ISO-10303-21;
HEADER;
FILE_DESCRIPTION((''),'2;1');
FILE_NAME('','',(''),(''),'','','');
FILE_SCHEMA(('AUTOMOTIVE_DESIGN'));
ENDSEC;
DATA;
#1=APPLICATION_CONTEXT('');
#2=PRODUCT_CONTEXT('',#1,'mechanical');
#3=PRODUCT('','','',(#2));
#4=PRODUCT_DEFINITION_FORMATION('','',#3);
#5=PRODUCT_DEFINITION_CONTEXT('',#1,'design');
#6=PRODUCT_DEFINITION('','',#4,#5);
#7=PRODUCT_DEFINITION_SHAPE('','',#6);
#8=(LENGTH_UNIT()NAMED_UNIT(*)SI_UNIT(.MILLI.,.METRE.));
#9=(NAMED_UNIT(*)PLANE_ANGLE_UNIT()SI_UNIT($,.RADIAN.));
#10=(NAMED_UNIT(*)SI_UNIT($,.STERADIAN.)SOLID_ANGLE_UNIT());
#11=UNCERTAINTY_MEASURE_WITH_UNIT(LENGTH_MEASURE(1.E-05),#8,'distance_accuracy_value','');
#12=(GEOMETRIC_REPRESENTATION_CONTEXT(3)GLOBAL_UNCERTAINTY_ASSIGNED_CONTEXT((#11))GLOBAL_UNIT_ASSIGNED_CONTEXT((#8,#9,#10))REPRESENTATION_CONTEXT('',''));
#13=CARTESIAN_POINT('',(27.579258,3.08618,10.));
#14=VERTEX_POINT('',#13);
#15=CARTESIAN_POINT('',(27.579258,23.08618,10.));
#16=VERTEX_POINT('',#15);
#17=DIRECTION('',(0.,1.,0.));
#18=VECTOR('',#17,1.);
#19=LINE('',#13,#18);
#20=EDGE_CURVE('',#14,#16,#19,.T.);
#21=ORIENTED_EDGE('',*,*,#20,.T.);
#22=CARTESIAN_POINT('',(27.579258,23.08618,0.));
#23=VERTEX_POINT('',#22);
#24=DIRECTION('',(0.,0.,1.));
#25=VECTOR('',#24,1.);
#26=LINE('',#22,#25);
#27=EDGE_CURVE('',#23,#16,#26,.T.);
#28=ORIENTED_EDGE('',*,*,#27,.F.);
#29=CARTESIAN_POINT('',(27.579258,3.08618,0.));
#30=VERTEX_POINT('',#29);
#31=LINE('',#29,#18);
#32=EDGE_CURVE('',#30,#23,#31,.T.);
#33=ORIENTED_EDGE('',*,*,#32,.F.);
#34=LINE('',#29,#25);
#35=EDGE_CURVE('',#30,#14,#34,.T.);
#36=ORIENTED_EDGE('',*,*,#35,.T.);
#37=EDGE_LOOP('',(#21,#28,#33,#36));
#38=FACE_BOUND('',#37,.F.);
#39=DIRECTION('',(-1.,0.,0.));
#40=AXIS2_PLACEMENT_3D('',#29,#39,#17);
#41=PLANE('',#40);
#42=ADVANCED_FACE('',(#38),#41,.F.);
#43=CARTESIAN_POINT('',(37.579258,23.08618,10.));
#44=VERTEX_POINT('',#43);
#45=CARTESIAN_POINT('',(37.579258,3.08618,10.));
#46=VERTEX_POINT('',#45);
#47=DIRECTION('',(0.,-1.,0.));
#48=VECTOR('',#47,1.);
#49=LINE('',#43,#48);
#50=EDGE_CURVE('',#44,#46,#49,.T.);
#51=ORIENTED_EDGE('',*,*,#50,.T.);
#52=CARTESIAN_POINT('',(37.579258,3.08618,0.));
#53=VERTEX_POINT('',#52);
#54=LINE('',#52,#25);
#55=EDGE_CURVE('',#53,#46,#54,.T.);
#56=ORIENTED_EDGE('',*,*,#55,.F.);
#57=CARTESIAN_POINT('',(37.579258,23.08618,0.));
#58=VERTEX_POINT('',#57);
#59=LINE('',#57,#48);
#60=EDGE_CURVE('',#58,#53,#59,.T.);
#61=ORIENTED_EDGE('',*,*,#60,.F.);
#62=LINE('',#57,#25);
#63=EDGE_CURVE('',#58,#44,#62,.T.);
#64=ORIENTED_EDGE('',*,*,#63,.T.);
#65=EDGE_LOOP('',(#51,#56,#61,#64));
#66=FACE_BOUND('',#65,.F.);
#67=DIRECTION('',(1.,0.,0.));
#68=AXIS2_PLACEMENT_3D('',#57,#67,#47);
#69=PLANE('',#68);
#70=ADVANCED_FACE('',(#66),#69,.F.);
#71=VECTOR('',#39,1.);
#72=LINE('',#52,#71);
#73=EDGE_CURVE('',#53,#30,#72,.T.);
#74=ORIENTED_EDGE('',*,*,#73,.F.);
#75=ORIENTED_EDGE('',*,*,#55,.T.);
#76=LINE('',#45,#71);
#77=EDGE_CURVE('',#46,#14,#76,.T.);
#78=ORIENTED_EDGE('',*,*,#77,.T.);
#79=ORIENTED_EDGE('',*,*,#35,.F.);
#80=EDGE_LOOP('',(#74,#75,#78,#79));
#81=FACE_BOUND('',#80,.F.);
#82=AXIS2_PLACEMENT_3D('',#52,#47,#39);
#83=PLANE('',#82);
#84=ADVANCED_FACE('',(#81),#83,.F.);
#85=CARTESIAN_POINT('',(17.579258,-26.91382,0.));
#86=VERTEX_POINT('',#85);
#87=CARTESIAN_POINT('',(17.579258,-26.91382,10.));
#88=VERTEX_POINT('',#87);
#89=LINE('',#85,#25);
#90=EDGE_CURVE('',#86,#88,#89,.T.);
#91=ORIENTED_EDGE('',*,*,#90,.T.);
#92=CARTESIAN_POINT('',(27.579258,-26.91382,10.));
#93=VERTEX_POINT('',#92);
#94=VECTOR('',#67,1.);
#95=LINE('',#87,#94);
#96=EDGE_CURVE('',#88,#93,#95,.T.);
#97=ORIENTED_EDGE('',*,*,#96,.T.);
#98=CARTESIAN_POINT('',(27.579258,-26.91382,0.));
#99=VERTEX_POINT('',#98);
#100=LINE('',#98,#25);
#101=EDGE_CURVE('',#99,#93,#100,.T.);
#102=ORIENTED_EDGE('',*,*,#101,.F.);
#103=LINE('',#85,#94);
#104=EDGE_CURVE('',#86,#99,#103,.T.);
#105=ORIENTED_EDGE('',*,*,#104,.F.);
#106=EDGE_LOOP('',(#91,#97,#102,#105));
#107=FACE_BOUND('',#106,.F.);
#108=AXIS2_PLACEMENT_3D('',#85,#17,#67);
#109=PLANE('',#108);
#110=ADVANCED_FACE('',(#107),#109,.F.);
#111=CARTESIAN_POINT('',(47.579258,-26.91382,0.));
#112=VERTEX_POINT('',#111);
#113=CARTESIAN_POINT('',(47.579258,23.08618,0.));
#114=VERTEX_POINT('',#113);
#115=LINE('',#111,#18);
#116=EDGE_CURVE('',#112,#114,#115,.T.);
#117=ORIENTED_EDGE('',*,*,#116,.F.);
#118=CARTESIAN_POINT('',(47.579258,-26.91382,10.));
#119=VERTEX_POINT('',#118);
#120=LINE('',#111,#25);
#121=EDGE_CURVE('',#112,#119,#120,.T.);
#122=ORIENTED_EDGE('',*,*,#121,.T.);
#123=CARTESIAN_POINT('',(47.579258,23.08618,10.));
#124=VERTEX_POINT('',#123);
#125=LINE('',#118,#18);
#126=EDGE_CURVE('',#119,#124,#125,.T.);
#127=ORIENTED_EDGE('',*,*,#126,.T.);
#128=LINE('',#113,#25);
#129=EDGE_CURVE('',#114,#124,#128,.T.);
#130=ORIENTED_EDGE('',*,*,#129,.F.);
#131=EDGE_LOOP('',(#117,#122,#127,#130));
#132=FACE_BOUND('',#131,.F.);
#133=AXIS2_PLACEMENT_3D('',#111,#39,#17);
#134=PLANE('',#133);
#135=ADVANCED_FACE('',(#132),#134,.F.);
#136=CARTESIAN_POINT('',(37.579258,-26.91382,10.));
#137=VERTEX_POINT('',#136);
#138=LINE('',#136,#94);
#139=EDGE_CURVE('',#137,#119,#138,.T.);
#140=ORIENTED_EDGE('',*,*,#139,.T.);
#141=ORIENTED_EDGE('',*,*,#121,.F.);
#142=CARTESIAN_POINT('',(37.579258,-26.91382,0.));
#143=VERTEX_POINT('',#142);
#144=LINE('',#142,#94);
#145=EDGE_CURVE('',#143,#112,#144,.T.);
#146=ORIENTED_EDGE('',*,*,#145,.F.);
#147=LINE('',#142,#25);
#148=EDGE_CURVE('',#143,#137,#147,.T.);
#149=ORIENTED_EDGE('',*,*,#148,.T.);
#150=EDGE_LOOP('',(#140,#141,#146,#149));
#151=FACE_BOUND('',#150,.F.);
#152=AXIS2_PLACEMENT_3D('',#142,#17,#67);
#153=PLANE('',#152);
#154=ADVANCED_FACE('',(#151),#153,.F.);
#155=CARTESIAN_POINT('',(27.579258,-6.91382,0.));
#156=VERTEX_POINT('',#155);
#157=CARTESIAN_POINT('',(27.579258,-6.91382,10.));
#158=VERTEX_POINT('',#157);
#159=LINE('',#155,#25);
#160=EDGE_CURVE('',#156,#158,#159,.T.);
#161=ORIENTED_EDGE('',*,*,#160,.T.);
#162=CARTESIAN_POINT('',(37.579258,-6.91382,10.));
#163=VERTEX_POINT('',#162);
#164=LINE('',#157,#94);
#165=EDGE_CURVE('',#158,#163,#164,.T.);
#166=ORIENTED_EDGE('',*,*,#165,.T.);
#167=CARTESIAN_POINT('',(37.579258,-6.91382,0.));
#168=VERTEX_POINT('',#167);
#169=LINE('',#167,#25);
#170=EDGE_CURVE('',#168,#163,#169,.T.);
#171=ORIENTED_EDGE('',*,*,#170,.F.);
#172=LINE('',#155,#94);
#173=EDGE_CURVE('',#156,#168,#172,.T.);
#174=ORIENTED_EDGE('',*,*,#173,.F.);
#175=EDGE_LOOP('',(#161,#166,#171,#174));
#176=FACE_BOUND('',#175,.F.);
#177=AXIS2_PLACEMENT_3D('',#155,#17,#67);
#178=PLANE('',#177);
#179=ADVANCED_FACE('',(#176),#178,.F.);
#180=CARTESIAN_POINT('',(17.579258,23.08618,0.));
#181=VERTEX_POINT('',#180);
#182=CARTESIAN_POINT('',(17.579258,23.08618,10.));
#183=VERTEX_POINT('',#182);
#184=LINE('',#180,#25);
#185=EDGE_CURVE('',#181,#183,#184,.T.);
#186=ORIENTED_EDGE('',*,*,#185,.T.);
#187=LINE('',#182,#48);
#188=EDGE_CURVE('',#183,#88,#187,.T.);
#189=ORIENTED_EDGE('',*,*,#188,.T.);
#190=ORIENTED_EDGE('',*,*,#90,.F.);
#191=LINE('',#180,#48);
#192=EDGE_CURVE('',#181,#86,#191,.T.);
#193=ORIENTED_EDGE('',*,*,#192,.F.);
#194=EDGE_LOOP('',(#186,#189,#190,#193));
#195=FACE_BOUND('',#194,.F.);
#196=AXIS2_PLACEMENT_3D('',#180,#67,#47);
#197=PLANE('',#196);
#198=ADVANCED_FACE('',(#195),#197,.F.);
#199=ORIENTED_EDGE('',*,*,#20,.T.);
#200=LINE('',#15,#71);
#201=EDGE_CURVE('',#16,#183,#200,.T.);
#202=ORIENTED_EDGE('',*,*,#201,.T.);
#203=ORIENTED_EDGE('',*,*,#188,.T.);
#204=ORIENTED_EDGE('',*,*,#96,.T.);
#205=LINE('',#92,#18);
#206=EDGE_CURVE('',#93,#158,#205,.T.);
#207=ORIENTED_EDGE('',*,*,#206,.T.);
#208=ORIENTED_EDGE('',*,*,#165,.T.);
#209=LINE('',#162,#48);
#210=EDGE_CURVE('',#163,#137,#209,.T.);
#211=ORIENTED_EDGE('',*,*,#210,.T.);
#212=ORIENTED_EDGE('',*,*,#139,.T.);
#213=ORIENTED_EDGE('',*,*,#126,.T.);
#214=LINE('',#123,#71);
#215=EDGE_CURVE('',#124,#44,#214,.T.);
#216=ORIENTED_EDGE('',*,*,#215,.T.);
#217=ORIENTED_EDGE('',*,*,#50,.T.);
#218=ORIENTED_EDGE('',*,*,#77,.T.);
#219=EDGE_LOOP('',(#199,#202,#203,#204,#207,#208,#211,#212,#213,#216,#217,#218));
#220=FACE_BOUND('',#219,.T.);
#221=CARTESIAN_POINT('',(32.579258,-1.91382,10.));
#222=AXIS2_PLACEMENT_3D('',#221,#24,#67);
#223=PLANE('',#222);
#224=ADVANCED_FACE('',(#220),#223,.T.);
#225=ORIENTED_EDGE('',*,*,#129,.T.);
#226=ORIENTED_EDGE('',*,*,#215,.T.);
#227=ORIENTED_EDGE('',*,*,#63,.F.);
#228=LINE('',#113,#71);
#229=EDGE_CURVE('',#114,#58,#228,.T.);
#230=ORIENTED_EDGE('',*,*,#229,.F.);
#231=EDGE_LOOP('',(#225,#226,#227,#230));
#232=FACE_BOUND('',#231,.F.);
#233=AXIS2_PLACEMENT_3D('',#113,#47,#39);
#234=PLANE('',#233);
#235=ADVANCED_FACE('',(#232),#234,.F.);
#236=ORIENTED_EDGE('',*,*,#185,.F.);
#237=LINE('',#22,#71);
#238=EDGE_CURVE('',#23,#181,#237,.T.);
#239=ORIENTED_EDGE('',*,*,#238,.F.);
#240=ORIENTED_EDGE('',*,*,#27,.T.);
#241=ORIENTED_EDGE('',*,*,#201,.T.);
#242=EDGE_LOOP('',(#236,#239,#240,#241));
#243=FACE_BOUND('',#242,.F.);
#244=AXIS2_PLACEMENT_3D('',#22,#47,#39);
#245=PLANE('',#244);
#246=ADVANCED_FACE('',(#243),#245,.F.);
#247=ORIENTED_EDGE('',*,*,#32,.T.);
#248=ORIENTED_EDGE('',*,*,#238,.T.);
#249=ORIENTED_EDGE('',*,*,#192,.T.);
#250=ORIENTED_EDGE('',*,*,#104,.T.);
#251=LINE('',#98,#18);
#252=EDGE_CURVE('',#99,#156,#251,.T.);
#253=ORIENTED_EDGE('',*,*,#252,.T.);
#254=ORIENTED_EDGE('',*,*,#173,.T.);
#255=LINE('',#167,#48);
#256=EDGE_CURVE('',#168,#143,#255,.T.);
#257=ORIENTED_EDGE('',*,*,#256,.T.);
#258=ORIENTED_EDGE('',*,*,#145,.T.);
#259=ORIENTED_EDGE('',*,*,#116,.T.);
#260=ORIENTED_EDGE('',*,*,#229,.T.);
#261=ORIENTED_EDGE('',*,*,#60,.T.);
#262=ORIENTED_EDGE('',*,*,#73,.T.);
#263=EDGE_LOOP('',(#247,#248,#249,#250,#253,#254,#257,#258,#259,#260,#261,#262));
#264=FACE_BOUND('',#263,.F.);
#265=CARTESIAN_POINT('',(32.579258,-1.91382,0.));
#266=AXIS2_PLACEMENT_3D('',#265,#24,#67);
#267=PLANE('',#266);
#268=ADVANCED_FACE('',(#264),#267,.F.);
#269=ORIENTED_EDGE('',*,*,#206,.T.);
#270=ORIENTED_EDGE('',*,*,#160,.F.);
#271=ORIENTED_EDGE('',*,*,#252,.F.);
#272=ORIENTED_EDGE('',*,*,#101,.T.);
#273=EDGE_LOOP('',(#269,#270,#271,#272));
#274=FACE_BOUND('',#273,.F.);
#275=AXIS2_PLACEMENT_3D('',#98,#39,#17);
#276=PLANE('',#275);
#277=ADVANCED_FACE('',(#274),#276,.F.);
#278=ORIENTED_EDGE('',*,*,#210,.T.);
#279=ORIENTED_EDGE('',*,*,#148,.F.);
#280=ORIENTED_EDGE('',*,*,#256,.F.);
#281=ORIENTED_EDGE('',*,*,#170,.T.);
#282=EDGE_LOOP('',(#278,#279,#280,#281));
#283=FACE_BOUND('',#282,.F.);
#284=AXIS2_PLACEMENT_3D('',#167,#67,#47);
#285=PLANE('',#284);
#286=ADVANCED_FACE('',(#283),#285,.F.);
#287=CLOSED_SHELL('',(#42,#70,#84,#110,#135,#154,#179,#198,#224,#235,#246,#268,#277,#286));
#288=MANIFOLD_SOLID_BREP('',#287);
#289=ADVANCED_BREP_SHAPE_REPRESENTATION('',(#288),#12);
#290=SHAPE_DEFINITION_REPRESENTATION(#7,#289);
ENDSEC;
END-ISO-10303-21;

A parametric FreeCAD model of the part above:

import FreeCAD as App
import Part
import Sketcher
Q = App.Units.Quantity

doc = App.newDocument("Part")
params = doc.addObject("Spreadsheet::Sheet", "Params")
for row, (alias, value) in enumerate([
    ("sketch1_width", "10 mm"),
    ("sketch1_height", "50 mm"),
    ("sketch1_height2", "20 mm"),
    ("pad1_length", "10 mm"),
], start=1):
    params.set(f"A{row}", alias)
    params.set(f"B{row}", "=" + value)
    params.setAlias(f"B{row}", alias)

body = doc.addObject("PartDesign::Body", "Body")

# Sketch on XY plane
sketch1 = body.newObject("Sketcher::SketchObject", "Sketch")
sketch1.AttachmentSupport = (doc.getObject("XY_Plane"), [""])
sketch1.MapMode = "FlatFace"
sketch1.addGeometry(Part.LineSegment(App.Vector(18, 23, 0), App.Vector(18, -27, 0)), False)
sketch1.addGeometry(Part.LineSegment(App.Vector(18, -27, 0), App.Vector(28, -27, 0)), False)
sketch1.addGeometry(Part.LineSegment(App.Vector(28, -27, 0), App.Vector(28, -7, 0)), False)
sketch1.addGeometry(Part.LineSegment(App.Vector(28, -7, 0), App.Vector(38, -7, 0)), False)
sketch1.addGeometry(Part.LineSegment(App.Vector(38, -7, 0), App.Vector(38, -27, 0)), False)
sketch1.addGeometry(Part.LineSegment(App.Vector(38, -27, 0), App.Vector(48, -27, 0)), False)
sketch1.addGeometry(Part.LineSegment(App.Vector(48, -27, 0), App.Vector(48, 23, 0)), False)
sketch1.addGeometry(Part.LineSegment(App.Vector(48, 23, 0), App.Vector(38, 23, 0)), False)
sketch1.addGeometry(Part.LineSegment(App.Vector(38, 23, 0), App.Vector(38, 3, 0)), False)
sketch1.addGeometry(Part.LineSegment(App.Vector(38, 3, 0), App.Vector(28, 3, 0)), False)
sketch1.addGeometry(Part.LineSegment(App.Vector(28, 3, 0), App.Vector(28, 23, 0)), False)
sketch1.addGeometry(Part.LineSegment(App.Vector(28, 23, 0), App.Vector(18, 23, 0)), False)
sketch1.addConstraint(Sketcher.Constraint("Coincident", 0, 2, 1, 1))
sketch1.addConstraint(Sketcher.Constraint("Coincident", 1, 2, 2, 1))
sketch1.addConstraint(Sketcher.Constraint("Coincident", 2, 2, 3, 1))
sketch1.addConstraint(Sketcher.Constraint("Coincident", 3, 2, 4, 1))
sketch1.addConstraint(Sketcher.Constraint("Coincident", 4, 2, 5, 1))
sketch1.addConstraint(Sketcher.Constraint("Coincident", 5, 2, 6, 1))
sketch1.addConstraint(Sketcher.Constraint("Coincident", 6, 2, 7, 1))
sketch1.addConstraint(Sketcher.Constraint("Coincident", 7, 2, 8, 1))
sketch1.addConstraint(Sketcher.Constraint("Coincident", 8, 2, 9, 1))
sketch1.addConstraint(Sketcher.Constraint("Coincident", 9, 2, 10, 1))
sketch1.addConstraint(Sketcher.Constraint("Coincident", 10, 2, 11, 1))
sketch1.addConstraint(Sketcher.Constraint("Coincident", 11, 2, 0, 1))
sketch1.addConstraint(Sketcher.Constraint("Vertical", 0))
sketch1.addConstraint(Sketcher.Constraint("Horizontal", 1))
sketch1.addConstraint(Sketcher.Constraint("Vertical", 2))
sketch1.addConstraint(Sketcher.Constraint("Horizontal", 3))
sketch1.addConstraint(Sketcher.Constraint("Vertical", 4))
sketch1.addConstraint(Sketcher.Constraint("Horizontal", 5))
sketch1.addConstraint(Sketcher.Constraint("Vertical", 6))
sketch1.addConstraint(Sketcher.Constraint("Horizontal", 7))
sketch1.addConstraint(Sketcher.Constraint("Vertical", 8))
sketch1.addConstraint(Sketcher.Constraint("Horizontal", 9))
sketch1.addConstraint(Sketcher.Constraint("Vertical", 10))
sketch1.addConstraint(Sketcher.Constraint("Horizontal", 11))
sketch1.addConstraint(Sketcher.Constraint("Horizontal", 1, 2, 4, 2))
sketch1.addConstraint(Sketcher.Constraint("Horizontal", 7, 2, 10, 2))
sketch1.addConstraint(Sketcher.Constraint("Vertical", 4, 2, 7, 2))
sketch1.addConstraint(Sketcher.Constraint("Vertical", 2, 2, 9, 2))
sketch1.addConstraint(Sketcher.Constraint("Equal", 1, 3))
sketch1.addConstraint(Sketcher.Constraint("Equal", 3, 5))
sketch1.addConstraint(Sketcher.Constraint("Equal", 4, 8))
sketch1.addConstraint(Sketcher.Constraint("DistanceX", 1, 1, 1, 2, Q("10 mm")))
sketch1.addConstraint(Sketcher.Constraint("DistanceY", 0, 2, 0, 1, Q("50 mm")))
sketch1.addConstraint(Sketcher.Constraint("DistanceY", 2, 1, 2, 2, Q("20 mm")))
sketch1.addConstraint(Sketcher.Constraint("DistanceY", 0, 2, -1, 1, Q("26.91382 mm")))
sketch1.addConstraint(Sketcher.Constraint("DistanceX", -1, 1, 3, 2, Q("37.579258 mm")))
sketch1.setExpression("Constraints[31]", "Params.sketch1_width")
sketch1.setExpression("Constraints[32]", "Params.sketch1_height")
sketch1.setExpression("Constraints[33]", "Params.sketch1_height2")
pad1 = body.newObject("PartDesign::Pad", "Pad")
pad1.Profile = sketch1
pad1.setExpression("Length", "Params.pad1_length")

doc.recompute()
